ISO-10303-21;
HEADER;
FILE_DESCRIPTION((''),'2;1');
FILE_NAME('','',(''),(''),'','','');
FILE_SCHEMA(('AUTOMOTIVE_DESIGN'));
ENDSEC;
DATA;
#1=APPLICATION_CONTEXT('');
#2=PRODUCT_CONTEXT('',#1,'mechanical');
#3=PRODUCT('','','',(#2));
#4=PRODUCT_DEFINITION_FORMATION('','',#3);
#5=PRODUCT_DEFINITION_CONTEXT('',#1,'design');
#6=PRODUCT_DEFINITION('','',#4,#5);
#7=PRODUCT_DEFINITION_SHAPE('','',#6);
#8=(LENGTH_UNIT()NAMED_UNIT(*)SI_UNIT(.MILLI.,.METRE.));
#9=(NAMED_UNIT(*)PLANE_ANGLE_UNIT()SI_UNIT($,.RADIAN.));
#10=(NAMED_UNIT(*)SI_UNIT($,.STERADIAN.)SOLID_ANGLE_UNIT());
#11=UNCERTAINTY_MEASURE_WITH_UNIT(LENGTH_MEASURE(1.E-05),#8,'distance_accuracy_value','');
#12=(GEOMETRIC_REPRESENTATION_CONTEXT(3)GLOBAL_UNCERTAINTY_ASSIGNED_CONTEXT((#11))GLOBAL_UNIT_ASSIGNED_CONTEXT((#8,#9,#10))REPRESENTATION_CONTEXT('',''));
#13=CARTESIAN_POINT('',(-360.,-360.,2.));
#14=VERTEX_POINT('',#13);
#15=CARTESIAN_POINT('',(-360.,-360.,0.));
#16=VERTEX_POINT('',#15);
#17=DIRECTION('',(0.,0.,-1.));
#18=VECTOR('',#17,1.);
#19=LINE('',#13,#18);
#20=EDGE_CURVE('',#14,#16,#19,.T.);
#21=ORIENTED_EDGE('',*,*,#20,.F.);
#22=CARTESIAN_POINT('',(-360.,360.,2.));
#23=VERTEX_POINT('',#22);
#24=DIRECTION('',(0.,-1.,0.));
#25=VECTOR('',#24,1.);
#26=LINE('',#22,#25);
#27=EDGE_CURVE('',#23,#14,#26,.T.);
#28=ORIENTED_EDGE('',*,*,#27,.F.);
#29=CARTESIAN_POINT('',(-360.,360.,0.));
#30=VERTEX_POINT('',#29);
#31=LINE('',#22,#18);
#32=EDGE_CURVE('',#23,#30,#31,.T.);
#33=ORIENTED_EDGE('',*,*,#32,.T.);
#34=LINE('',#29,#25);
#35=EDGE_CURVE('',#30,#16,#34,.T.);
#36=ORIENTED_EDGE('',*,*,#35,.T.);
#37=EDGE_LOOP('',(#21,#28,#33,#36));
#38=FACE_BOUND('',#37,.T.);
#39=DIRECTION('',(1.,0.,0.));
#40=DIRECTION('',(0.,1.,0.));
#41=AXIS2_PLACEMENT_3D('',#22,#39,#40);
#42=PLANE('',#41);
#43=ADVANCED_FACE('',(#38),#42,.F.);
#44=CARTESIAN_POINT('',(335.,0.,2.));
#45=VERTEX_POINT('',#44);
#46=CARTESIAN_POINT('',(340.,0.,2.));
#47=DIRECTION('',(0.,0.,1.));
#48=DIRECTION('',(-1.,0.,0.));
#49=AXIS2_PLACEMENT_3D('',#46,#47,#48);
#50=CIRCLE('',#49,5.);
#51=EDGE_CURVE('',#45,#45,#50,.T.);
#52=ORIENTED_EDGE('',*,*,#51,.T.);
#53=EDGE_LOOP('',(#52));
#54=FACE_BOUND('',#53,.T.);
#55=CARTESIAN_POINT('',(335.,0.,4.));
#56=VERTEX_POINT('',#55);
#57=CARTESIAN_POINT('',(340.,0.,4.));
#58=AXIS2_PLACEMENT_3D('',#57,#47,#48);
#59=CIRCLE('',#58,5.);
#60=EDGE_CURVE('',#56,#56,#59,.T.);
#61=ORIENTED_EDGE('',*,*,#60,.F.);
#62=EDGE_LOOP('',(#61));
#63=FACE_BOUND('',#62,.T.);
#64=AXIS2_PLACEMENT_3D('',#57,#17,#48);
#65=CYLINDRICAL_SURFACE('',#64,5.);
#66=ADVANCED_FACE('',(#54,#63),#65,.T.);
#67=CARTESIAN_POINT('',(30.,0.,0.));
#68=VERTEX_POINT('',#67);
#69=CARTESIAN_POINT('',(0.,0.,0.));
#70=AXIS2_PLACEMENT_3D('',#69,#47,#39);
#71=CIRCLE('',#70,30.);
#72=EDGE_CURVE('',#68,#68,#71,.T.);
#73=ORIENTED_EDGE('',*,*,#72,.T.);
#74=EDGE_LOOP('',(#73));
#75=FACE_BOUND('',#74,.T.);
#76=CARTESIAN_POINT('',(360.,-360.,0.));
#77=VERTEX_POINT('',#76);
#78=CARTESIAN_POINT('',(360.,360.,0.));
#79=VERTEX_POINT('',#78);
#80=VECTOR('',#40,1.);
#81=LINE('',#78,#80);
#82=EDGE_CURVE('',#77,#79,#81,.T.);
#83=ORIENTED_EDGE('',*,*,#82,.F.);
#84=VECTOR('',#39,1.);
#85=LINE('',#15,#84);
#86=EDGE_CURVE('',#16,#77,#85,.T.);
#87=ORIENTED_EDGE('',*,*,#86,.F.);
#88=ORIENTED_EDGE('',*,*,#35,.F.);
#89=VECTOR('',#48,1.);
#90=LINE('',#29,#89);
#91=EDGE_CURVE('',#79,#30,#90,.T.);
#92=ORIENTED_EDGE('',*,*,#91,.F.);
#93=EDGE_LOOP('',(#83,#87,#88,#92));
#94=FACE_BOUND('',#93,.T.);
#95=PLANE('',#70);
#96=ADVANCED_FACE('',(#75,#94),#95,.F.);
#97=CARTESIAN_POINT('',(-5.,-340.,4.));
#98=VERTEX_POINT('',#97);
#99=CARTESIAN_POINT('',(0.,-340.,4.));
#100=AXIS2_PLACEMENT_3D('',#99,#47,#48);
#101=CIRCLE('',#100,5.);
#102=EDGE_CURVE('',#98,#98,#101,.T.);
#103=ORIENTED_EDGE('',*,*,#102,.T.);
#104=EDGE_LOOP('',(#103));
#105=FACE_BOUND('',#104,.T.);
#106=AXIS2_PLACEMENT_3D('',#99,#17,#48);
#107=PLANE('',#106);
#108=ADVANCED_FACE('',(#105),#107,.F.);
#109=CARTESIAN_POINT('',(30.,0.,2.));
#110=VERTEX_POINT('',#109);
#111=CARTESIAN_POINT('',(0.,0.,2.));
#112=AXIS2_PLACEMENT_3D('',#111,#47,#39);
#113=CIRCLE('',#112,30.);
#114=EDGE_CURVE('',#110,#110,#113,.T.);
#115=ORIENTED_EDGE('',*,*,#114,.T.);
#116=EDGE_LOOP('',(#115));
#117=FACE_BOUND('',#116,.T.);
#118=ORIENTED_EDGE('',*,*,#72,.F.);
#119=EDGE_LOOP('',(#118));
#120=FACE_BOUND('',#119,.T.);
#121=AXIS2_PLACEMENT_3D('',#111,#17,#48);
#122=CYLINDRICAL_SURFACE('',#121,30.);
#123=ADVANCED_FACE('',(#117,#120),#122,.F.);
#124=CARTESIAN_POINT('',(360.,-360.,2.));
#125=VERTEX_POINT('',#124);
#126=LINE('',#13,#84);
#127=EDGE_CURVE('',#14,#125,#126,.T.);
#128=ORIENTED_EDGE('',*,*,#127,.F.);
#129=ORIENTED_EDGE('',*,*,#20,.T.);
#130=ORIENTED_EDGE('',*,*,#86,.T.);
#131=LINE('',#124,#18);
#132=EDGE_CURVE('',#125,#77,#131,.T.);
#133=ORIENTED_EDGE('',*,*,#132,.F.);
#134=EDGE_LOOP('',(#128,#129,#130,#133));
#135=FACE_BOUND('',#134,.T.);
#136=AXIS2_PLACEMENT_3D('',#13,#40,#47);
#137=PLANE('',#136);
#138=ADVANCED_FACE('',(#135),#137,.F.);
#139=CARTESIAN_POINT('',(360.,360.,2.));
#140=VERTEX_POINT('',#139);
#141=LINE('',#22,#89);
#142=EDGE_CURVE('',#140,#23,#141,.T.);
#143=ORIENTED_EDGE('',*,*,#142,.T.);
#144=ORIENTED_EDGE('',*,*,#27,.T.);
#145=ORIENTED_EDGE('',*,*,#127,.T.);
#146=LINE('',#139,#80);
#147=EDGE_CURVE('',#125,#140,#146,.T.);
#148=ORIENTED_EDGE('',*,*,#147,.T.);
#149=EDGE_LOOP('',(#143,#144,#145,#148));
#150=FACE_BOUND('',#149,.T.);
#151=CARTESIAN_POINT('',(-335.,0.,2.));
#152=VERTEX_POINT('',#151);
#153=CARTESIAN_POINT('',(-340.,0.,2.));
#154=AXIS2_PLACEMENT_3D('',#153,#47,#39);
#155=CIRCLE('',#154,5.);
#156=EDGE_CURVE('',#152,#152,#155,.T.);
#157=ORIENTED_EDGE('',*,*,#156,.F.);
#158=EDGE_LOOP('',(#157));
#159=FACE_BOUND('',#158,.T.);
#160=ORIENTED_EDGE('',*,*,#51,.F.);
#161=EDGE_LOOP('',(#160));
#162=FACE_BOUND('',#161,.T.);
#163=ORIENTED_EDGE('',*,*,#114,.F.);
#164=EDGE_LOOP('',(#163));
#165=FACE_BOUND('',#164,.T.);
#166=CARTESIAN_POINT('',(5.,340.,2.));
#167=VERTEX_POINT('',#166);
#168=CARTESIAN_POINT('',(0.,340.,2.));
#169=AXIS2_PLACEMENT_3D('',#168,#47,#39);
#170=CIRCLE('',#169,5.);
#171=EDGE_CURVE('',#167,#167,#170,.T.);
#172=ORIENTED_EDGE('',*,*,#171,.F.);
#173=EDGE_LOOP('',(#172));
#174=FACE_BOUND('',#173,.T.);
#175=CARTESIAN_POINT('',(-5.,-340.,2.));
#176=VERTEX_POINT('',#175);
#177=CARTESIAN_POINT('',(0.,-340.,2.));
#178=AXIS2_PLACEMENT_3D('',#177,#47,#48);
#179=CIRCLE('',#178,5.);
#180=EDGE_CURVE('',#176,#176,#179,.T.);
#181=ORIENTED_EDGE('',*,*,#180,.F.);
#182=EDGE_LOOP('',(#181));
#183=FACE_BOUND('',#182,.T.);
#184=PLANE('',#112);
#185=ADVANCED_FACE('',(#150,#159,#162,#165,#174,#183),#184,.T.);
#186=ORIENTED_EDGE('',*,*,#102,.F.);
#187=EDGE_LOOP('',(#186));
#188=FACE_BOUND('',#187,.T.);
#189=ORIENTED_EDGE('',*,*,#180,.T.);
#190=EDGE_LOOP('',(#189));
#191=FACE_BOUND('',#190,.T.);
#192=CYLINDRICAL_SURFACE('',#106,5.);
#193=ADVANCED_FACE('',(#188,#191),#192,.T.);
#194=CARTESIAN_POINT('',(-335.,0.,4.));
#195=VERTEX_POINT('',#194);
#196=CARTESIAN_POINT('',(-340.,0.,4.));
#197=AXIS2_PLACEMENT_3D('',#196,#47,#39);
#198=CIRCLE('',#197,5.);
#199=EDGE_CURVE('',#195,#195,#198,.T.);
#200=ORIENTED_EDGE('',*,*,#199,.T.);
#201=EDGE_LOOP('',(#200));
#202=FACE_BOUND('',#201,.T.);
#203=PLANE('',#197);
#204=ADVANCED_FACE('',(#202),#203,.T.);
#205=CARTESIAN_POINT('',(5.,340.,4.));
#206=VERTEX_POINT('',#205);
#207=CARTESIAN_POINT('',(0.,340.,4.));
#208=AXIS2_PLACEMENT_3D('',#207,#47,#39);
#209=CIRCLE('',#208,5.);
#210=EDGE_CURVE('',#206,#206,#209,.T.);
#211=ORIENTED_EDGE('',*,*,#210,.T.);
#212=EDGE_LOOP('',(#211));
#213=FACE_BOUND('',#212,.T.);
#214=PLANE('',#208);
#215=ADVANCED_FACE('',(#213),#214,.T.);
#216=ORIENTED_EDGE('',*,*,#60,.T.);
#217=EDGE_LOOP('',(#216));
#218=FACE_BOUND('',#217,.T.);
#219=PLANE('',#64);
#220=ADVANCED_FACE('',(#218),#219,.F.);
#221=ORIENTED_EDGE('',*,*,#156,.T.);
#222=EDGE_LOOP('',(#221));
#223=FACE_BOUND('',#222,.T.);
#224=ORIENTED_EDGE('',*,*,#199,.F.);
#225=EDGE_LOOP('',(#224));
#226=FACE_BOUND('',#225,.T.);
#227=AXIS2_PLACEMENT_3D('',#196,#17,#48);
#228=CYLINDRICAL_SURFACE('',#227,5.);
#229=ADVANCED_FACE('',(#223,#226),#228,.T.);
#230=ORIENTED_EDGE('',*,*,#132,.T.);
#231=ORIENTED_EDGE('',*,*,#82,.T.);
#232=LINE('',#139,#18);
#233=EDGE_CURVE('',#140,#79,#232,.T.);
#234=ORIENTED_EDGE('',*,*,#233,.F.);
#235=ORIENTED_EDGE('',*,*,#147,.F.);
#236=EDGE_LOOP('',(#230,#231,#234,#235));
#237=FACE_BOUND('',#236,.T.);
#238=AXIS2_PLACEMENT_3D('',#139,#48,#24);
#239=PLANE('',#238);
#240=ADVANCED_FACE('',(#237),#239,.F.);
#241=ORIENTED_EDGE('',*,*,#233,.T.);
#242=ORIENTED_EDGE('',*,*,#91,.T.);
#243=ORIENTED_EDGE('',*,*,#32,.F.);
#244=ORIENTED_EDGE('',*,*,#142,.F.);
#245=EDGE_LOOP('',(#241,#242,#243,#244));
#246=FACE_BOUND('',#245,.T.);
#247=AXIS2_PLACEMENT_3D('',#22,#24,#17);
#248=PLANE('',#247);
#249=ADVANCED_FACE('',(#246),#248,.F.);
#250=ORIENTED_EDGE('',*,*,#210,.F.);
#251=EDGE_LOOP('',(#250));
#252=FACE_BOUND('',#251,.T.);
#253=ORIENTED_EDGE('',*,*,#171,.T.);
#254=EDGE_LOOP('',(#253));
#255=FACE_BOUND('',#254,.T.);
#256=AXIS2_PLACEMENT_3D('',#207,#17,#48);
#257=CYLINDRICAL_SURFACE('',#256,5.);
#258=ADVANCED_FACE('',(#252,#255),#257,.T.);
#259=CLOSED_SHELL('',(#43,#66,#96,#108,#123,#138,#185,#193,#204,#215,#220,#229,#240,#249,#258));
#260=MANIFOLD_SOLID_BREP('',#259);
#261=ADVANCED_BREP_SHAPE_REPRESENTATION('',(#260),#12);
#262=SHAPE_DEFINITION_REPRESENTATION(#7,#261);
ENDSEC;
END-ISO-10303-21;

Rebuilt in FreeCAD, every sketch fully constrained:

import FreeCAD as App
import Part
import Sketcher
from FreeCAD import Vector

doc = App.newDocument("Part")
body = doc.addObject("PartDesign::Body", "Body")

sketch1 = doc.addObject("Sketcher::SketchObject", "Sketch")
body.addObject(sketch1)
sketch1.AttachmentSupport = (doc.XY_Plane, [""])
sketch1.MapMode = "FlatFace"
sketch1.addGeometry(Part.LineSegment(Vector(-360, 360, 0), Vector(-360, -360, 0)), False)
sketch1.addGeometry(Part.LineSegment(Vector(-360, -360, 0), Vector(360, -360, 0)), False)
sketch1.addGeometry(Part.LineSegment(Vector(360, -360, 0), Vector(360, 360, 0)), False)
sketch1.addGeometry(Part.LineSegment(Vector(360, 360, 0), Vector(-360, 360, 0)), False)
sketch1.addGeometry(Part.Circle(Vector(0, 0, 0), Vector(0, 0, 1), 30), False)
sketch1.addConstraint(Sketcher.Constraint("Coincident", 0, 2, 1, 1))
sketch1.addConstraint(Sketcher.Constraint("Coincident", 1, 2, 2, 1))
sketch1.addConstraint(Sketcher.Constraint("Coincident", 2, 2, 3, 1))
sketch1.addConstraint(Sketcher.Constraint("Coincident", 3, 2, 0, 1))
sketch1.addConstraint(Sketcher.Constraint("Vertical", 0))
sketch1.addConstraint(Sketcher.Constraint("Horizontal", 1))
sketch1.addConstraint(Sketcher.Constraint("Vertical", 2))
sketch1.addConstraint(Sketcher.Constraint("Horizontal", 3))
sketch1.addConstraint(Sketcher.Constraint("Coincident", 4, 3, -1, 1))
sketch1.addConstraint(Sketcher.Constraint("Symmetric", 0, 2, 2, 2, -1, 1))
sketch1.addConstraint(Sketcher.Constraint("Equal", 3, 0))
sketch1.addConstraint(Sketcher.Constraint("Diameter", 4, 60.0))
sketch1.addConstraint(Sketcher.Constraint("DistanceX", 1, 1, 1, 2, 720.0))
pad1 = doc.addObject("PartDesign::Pad", "Pad")
body.addObject(pad1)
pad1.Profile = sketch1
pad1.Length = 2

sketch2 = doc.addObject("Sketcher::SketchObject", "Sketch001")
body.addObject(sketch2)
sketch2.AttachmentSupport = (doc.XY_Plane, [""])
sketch2.MapMode = "FlatFace"
sketch2.AttachmentOffset = App.Placement(Vector(0, 0, 2), App.Rotation())
sketch2.addGeometry(Part.Circle(Vector(0, 340, 0), Vector(0, 0, 1), 5), False)
sketch2.addGeometry(Part.Circle(Vector(-340, 0, 0), Vector(0, 0, 1), 5), False)
sketch2.addGeometry(Part.Circle(Vector(0, -340, 0), Vector(0, 0, 1), 5), False)
sketch2.addGeometry(Part.Circle(Vector(340, 0, 0), Vector(0, 0, 1), 5), False)
sketch2.addConstraint(Sketcher.Constraint("Equal", 0, 1))
sketch2.addConstraint(Sketcher.Constraint("Equal", 1, 2))
sketch2.addConstraint(Sketcher.Constraint("Equal", 2, 3))
sketch2.addConstraint(Sketcher.Constraint("Symmetric", 0, 3, 2, 3, -1, 1))
sketch2.addConstraint(Sketcher.Constraint("Symmetric", 1, 3, 3, 3, -1, 1))
sketch2.addConstraint(Sketcher.Constraint("PointOnObject", 0, 3, -2))
sketch2.addConstraint(Sketcher.Constraint("PointOnObject", 1, 3, -1))
sketch2.addConstraint(Sketcher.Constraint("Diameter", 0, 10.0))
sketch2.addConstraint(Sketcher.Constraint("DistanceY", -1, 1, 0, 3, 340.0))
sketch2.addConstraint(Sketcher.Constraint("DistanceX", 1, 3, -1, 1, 340.0))
pad2 = doc.addObject("PartDesign::Pad", "Pad001")
body.addObject(pad2)
pad2.Profile = sketch2
pad2.Length = 2

doc.recompute()
